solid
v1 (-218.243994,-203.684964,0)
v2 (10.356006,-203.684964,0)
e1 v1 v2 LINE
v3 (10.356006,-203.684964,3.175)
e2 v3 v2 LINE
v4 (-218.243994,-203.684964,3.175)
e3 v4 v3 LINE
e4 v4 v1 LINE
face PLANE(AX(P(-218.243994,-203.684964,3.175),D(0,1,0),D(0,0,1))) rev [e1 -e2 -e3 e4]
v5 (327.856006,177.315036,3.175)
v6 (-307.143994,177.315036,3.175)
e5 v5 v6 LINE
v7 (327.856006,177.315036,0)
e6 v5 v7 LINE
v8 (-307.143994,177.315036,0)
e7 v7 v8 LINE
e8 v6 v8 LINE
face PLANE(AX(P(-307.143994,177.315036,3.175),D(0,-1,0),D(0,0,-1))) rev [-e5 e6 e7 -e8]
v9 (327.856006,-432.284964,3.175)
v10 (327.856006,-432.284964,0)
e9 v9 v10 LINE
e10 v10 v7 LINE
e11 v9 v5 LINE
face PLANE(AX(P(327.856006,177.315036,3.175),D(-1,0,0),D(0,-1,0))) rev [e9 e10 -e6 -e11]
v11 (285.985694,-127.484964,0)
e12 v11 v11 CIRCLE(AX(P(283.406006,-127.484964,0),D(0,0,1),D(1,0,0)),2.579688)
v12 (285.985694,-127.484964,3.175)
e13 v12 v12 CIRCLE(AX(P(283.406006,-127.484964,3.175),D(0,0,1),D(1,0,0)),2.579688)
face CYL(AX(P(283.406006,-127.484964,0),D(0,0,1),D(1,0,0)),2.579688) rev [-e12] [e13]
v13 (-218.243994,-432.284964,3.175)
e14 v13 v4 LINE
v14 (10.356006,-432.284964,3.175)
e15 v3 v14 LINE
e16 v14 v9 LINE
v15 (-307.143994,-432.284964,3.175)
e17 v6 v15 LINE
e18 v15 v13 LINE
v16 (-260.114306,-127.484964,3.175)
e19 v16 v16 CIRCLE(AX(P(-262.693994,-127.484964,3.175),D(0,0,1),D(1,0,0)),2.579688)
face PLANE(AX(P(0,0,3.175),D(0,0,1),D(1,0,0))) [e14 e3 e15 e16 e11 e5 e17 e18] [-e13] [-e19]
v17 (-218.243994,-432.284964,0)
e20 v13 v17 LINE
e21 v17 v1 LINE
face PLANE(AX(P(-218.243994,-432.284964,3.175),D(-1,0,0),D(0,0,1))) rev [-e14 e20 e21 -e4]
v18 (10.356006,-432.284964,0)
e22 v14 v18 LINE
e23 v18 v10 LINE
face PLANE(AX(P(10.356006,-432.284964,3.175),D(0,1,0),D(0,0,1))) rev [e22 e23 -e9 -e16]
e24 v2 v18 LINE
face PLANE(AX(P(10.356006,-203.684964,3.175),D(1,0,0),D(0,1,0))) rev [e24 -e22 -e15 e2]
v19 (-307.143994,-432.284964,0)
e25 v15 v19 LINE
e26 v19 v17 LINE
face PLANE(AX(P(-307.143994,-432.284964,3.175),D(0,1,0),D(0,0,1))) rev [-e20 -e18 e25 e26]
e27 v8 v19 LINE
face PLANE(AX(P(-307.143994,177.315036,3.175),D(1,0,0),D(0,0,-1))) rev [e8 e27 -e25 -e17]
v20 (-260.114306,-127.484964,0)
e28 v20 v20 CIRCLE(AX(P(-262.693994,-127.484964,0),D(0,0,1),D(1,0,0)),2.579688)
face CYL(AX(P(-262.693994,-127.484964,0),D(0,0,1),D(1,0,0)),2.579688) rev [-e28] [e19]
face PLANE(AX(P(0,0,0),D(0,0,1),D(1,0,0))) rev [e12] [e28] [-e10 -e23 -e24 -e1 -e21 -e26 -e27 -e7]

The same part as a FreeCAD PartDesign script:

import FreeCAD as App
import Part
import Sketcher
from FreeCAD import Vector
Q = App.Units.Quantity

doc = App.newDocument("Part")
body = doc.addObject("PartDesign::Body", "Body")

sketch1 = doc.addObject("Sketcher::SketchObject", "Sketch")
body.addObject(sketch1)
sketch1.AttachmentSupport = (doc.XY_Plane, [""])
sketch1.MapMode = "FlatFace"
sketch1.addGeometry([
    Part.LineSegment(Vector(-218, -432, 0), Vector(-218, -204, 0)),
    Part.LineSegment(Vector(-218, -204, 0), Vector(10, -204, 0)),
    Part.LineSegment(Vector(10, -204, 0), Vector(10, -432, 0)),
    Part.LineSegment(Vector(10, -432, 0), Vector(328, -432, 0)),
    Part.LineSegment(Vector(328, -432, 0), Vector(328, 177, 0)),
    Part.LineSegment(Vector(328, 177, 0), Vector(-307, 177, 0)),
    Part.LineSegment(Vector(-307, 177, 0), Vector(-307, -432, 0)),
    Part.LineSegment(Vector(-307, -432, 0), Vector(-218, -432, 0)),
], False)
sketch1.addConstraint([
    Sketcher.Constraint("Coincident", 0, 2, 1, 1),
    Sketcher.Constraint("Coincident", 1, 2, 2, 1),
    Sketcher.Constraint("Coincident", 2, 2, 3, 1),
    Sketcher.Constraint("Coincident", 3, 2, 4, 1),
    Sketcher.Constraint("Coincident", 4, 2, 5, 1),
    Sketcher.Constraint("Coincident", 5, 2, 6, 1),
    Sketcher.Constraint("Coincident", 6, 2, 7, 1),
    Sketcher.Constraint("Coincident", 7, 2, 0, 1),
    Sketcher.Constraint("Vertical", 0),
    Sketcher.Constraint("Horizontal", 1),
    Sketcher.Constraint("Vertical", 2),
    Sketcher.Constraint("Horizontal", 3),
    Sketcher.Constraint("Vertical", 4),
    Sketcher.Constraint("Horizontal", 5),
    Sketcher.Constraint("Vertical", 6),
    Sketcher.Constraint("Horizontal", 7),
    Sketcher.Constraint("Horizontal", 3, 2, 6, 2),
    Sketcher.Constraint("Equal", 1, 0),
    Sketcher.Constraint("DistanceX", 1, 1, 1, 2, Q("9 in")),
    Sketcher.Constraint("DistanceX", 5, 2, 5, 1, Q("25 in")),
    Sketcher.Constraint("DistanceY", 4, 1, 4, 2, Q("24 in")),
    Sketcher.Constraint("DistanceX", 3, 1, 3, 2, Q("12.5 in")),
    Sketcher.Constraint("DistanceX", 0, 2, -1, 1, 218.243994),
    Sketcher.Constraint("DistanceY", 0, 2, -1, 1, 203.684964),
])
pad1 = doc.addObject("PartDesign::Pad", "Pad")
body.addObject(pad1)
pad1.Profile = sketch1
pad1.Length = Q("0.125 in")

sketch2 = doc.addObject("Sketcher::SketchObject", "Sketch001")
body.addObject(sketch2)
sketch2.AttachmentSupport = (doc.XY_Plane, [""])
sketch2.MapMode = "FlatFace"
sketch2.AttachmentOffset = App.Placement(Vector(0, 0, 0.125 * 25.4), App.Rotation())
sketch2.addGeometry([
    Part.Circle(Vector(-262.7, -127.5, 0), Vector(0, 0, 1), 2.6),
    Part.Circle(Vector(283.4, -127.5, 0), Vector(0, 0, 1), 2.6),
], False)
sketch2.addConstraint([
    Sketcher.Constraint("Equal", 0, 1),
    Sketcher.Constraint("Horizontal", 0, 3, 1, 3),
    Sketcher.Constraint("Diameter", 0, Q("0.203125 in")),
    Sketcher.Constraint("DistanceX", 0, 3, 1, 3, Q("21.5 in")),
    Sketcher.Constraint("DistanceX", 0, 3, -1, 1, 262.693994),
    Sketcher.Constraint("DistanceY", 0, 3, -1, 1, 127.484964),
])
pocket1 = doc.addObject("PartDesign::Pocket", "Pocket")
body.addObject(pocket1)
pocket1.Profile = sketch2
pocket1.Length = Q("0.125 in")

doc.recompute()
